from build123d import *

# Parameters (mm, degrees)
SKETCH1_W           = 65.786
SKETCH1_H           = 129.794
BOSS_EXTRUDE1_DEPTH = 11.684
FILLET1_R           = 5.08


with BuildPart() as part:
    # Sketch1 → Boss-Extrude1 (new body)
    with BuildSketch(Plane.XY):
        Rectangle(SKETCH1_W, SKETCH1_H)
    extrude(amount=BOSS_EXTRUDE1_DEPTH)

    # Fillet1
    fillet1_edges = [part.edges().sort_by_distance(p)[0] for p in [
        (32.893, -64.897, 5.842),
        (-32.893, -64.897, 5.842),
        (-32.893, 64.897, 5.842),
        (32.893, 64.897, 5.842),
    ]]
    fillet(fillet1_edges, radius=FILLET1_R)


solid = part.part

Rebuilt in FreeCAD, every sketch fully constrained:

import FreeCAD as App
import Part
import Sketcher

V = App.Vector
Q = App.Units.Quantity


def edges_at(feature, points):
    """Names of the edges that pass closest to the given points."""
    edges = feature.Shape.Edges
    near = lambda p: min(range(len(edges)), key=lambda i: edges[i].distToShape(Part.Vertex(*p))[0])
    return sorted({f"Edge{near(p) + 1}" for p in points})

doc = App.newDocument("Part")
body = doc.addObject("PartDesign::Body", "Body")

# Sketch on XY plane
sketch1 = body.newObject("Sketcher::SketchObject", "Sketch")
sketch1.AttachmentSupport = (doc.getObject("XY_Plane"), [""])
sketch1.MapMode = "FlatFace"
sketch1.addGeometry(Part.LineSegment(V(-33, 65, 0), V(-33, -65, 0)), False)
sketch1.addGeometry(Part.LineSegment(V(-33, -65, 0), V(33, -65, 0)), False)
sketch1.addGeometry(Part.LineSegment(V(33, -65, 0), V(33, 65, 0)), False)
sketch1.addGeometry(Part.LineSegment(V(33, 65, 0), V(-33, 65, 0)), False)
sketch1.addConstraint(Sketcher.Constraint("Coincident", 0, 2, 1, 1))
sketch1.addConstraint(Sketcher.Constraint("Coincident", 1, 2, 2, 1))
sketch1.addConstraint(Sketcher.Constraint("Coincident", 2, 2, 3, 1))
sketch1.addConstraint(Sketcher.Constraint("Coincident", 3, 2, 0, 1))
sketch1.addConstraint(Sketcher.Constraint("Vertical", 0))
sketch1.addConstraint(Sketcher.Constraint("Horizontal", 1))
sketch1.addConstraint(Sketcher.Constraint("Vertical", 2))
sketch1.addConstraint(Sketcher.Constraint("Horizontal", 3))
sketch1.addConstraint(Sketcher.Constraint("Symmetric", 0, 2, 2, 2, -1, 1))
sketch1.addConstraint(Sketcher.Constraint("DistanceX", 1, 1, 1, 2, Q("2.59 in")))
sketch1.addConstraint(Sketcher.Constraint("DistanceY", 0, 2, 0, 1, Q("5.11 in")))
pad1 = body.newObject("PartDesign::Pad", "Pad")
pad1.Profile = sketch1
pad1.Length = Q("0.46 in")
doc.recompute()

fillet = body.newObject("PartDesign::Fillet", "Fillet")
fillet.Base = (pad1, edges_at(pad1, [
    (32.893, -64.897, 5.842),
    (-32.893, -64.897, 5.842),
    (-32.893, 64.897, 5.842),
    (32.893, 64.897, 5.842),
]))
fillet.Radius = Q("0.2 in")

doc.recompute()
